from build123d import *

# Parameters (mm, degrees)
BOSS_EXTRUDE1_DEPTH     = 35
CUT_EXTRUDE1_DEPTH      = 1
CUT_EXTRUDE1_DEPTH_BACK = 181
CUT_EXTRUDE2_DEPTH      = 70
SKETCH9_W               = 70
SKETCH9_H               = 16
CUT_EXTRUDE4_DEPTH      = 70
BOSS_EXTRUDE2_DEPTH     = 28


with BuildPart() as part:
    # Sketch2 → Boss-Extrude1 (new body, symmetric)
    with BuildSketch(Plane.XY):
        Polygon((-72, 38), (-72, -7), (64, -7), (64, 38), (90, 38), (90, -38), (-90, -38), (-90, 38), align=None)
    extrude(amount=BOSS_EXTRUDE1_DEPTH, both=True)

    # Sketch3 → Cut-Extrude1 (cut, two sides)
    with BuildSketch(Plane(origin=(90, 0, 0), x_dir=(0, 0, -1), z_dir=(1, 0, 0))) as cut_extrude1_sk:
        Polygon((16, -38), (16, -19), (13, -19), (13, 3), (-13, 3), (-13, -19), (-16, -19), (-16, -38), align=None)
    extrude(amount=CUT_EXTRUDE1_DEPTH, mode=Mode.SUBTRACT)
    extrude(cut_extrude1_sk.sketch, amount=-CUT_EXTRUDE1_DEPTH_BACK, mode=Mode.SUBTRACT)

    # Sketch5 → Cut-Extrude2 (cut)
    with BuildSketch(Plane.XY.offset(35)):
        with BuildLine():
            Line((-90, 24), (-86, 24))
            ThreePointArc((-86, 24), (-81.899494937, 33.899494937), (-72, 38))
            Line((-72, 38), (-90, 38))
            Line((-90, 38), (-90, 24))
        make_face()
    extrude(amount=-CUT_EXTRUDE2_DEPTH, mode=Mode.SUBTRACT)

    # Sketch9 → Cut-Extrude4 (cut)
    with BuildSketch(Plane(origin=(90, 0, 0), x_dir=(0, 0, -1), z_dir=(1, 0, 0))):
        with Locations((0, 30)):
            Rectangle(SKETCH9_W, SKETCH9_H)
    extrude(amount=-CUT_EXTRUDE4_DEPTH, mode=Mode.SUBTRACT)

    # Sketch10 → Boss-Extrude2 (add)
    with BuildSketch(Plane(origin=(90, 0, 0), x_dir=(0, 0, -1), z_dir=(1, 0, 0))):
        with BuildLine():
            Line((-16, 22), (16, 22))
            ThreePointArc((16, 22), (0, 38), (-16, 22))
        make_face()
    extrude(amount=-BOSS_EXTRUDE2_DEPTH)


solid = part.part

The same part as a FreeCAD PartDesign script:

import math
import FreeCAD as App
import Part
import Sketcher
from FreeCAD import Vector
Q = App.Units.Quantity

doc = App.newDocument("Part")
body = doc.addObject("PartDesign::Body", "Body")

# Sketch on XY plane
sketch1 = doc.addObject("Sketcher::SketchObject", "Sketch")
body.addObject(sketch1)
sketch1.AttachmentSupport = (doc.XY_Plane, [""])
sketch1.MapMode = "FlatFace"
sketch1.addGeometry([
    Part.LineSegment(Vector(-72, -7, 0), Vector(-72, 38, 0)),  # 0
    Part.LineSegment(Vector(-72, 38, 0), Vector(-90, 38, 0)),  # 1
    Part.LineSegment(Vector(-90, 38, 0), Vector(-90, -38, 0)),  # 2
    Part.LineSegment(Vector(-90, -38, 0), Vector(90, -38, 0)),  # 3
    Part.LineSegment(Vector(90, -38, 0), Vector(90, 38, 0)),  # 4
    Part.LineSegment(Vector(90, 38, 0), Vector(64, 38, 0)),  # 5
    Part.LineSegment(Vector(64, 38, 0), Vector(64, -7, 0)),  # 6
    Part.LineSegment(Vector(64, -7, 0), Vector(-72, -7, 0)),  # 7
], False)
sketch1.addConstraint([
    Sketcher.Constraint("Coincident", 0, 2, 1, 1),
    Sketcher.Constraint("Coincident", 1, 2, 2, 1),
    Sketcher.Constraint("Coincident", 2, 2, 3, 1),
    Sketcher.Constraint("Coincident", 3, 2, 4, 1),
    Sketcher.Constraint("Coincident", 4, 2, 5, 1),
    Sketcher.Constraint("Coincident", 5, 2, 6, 1),
    Sketcher.Constraint("Coincident", 6, 2, 7, 1),
    Sketcher.Constraint("Coincident", 7, 2, 0, 1),
    Sketcher.Constraint("Vertical", 0),
    Sketcher.Constraint("Horizontal", 1),
    Sketcher.Constraint("Vertical", 2),
    Sketcher.Constraint("Horizontal", 3),
    Sketcher.Constraint("Vertical", 4),
    Sketcher.Constraint("Horizontal", 5),
    Sketcher.Constraint("Vertical", 6),
    Sketcher.Constraint("Horizontal", 7),
    Sketcher.Constraint("Symmetric", 1, 2, 3, 2, -1, 1),
    Sketcher.Constraint("Horizontal", 1, 2, 4, 2),
    Sketcher.Constraint("DistanceX", 1, 2, 1, 1, Q("18 mm")),
    Sketcher.Constraint("DistanceX", 3, 1, 3, 2, Q("180 mm")),
    Sketcher.Constraint("DistanceX", 5, 2, 5, 1, Q("26 mm")),
    Sketcher.Constraint("DistanceY", 0, 1, 0, 2, Q("45 mm")),
    Sketcher.Constraint("DistanceY", 2, 2, 2, 1, Q("76 mm")),
])
pad1 = doc.addObject("PartDesign::Pad", "Pad")
body.addObject(pad1)
pad1.Profile = sketch1
pad1.Length = 70
pad1.Midplane = True

# Sketch on YZ plane
sketch2 = doc.addObject("Sketcher::SketchObject", "Sketch001")
body.addObject(sketch2)
sketch2.AttachmentSupport = (doc.YZ_Plane, [""])
sketch2.MapMode = "FlatFace"
sketch2.AttachmentOffset = App.Placement(Vector(0, 0, 90), App.Rotation())
sketch2.addGeometry([
    Part.LineSegment(Vector(-38, -16, 0), Vector(-19, -16, 0)),  # 0
    Part.LineSegment(Vector(-19, -16, 0), Vector(-19, -13, 0)),  # 1
    Part.LineSegment(Vector(-19, -13, 0), Vector(3, -13, 0)),  # 2
    Part.LineSegment(Vector(3, -13, 0), Vector(3, 13, 0)),  # 3
    Part.LineSegment(Vector(3, 13, 0), Vector(-19, 13, 0)),  # 4
    Part.LineSegment(Vector(-19, 13, 0), Vector(-19, 16, 0)),  # 5
    Part.LineSegment(Vector(-19, 16, 0), Vector(-38, 16, 0)),  # 6
    Part.LineSegment(Vector(-38, 16, 0), Vector(-38, -16, 0)),  # 7
], False)
sketch2.addConstraint([
    Sketcher.Constraint("Coincident", 0, 2, 1, 1),
    Sketcher.Constraint("Coincident", 1, 2, 2, 1),
    Sketcher.Constraint("Coincident", 2, 2, 3, 1),
    Sketcher.Constraint("Coincident", 3, 2, 4, 1),
    Sketcher.Constraint("Coincident", 4, 2, 5, 1),
    Sketcher.Constraint("Coincident", 5, 2, 6, 1),
    Sketcher.Constraint("Coincident", 6, 2, 7, 1),
    Sketcher.Constraint("Coincident", 7, 2, 0, 1),
    Sketcher.Constraint("Horizontal", 0),
    Sketcher.Constraint("Vertical", 1),
    Sketcher.Constraint("Horizontal", 2),
    Sketcher.Constraint("Vertical", 3),
    Sketcher.Constraint("Horizontal", 4),
    Sketcher.Constraint("Vertical", 5),
    Sketcher.Constraint("Horizontal", 6),
    Sketcher.Constraint("Vertical", 7),
    Sketcher.Constraint("Symmetric", 1, 2, 4, 2, -1),
    Sketcher.Constraint("Equal", 1, 5),
    Sketcher.Constraint("DistanceX", 0, 1, 0, 2, Q("19 mm")),
    Sketcher.Constraint("DistanceX", 2, 1, 2, 2, Q("22 mm")),
    Sketcher.Constraint("DistanceY", 1, 1, 1, 2, Q("3 mm")),
    Sketcher.Constraint("DistanceY", 3, 1, 3, 2, Q("26 mm")),
    Sketcher.Constraint("DistanceX", 0, 2, -1, 1, Q("19 mm")),
])
pocket1 = doc.addObject("PartDesign::Pocket", "Pocket")
body.addObject(pocket1)
pocket1.Profile = sketch2
pocket1.Type = "ThroughAll"
pocket1.Midplane = True

# Sketch on XY plane
sketch3 = doc.addObject("Sketcher::SketchObject", "Sketch002")
body.addObject(sketch3)
sketch3.AttachmentSupport = (doc.XY_Plane, [""])
sketch3.MapMode = "FlatFace"
sketch3.AttachmentOffset = App.Placement(Vector(0, 0, 35), App.Rotation())
sketch3.addGeometry([
    Part.LineSegment(Vector(-90, 24, 0), Vector(-86, 24, 0)),
    Part.ArcOfCircle(Part.Circle(Vector(-72, 24, 0), Vector(0, 0, 1), 14), math.radians(90), math.radians(180)),
    Part.LineSegment(Vector(-72, 38, 0), Vector(-90, 38, 0)),
    Part.LineSegment(Vector(-90, 38, 0), Vector(-90, 24, 0)),
], False)
sketch3.addConstraint([
    Sketcher.Constraint("Coincident", 0, 2, 1, 2),
    Sketcher.Constraint("Tangent", 1, 1, 2, 1),
    Sketcher.Constraint("Coincident", 2, 2, 3, 1),
    Sketcher.Constraint("Coincident", 3, 2, 0, 1),
    Sketcher.Constraint("Horizontal", 0),
    Sketcher.Constraint("Horizontal", 2),
    Sketcher.Constraint("Vertical", 3),
    Sketcher.Constraint("Horizontal", 1, 3, 0, 2),
    Sketcher.Constraint("Radius", 1, Q("14 mm")),
    Sketcher.Constraint("DistanceX", 0, 1, 0, 2, Q("4 mm")),
    Sketcher.Constraint("DistanceX", 1, 3, -1, 1, Q("72 mm")),
    Sketcher.Constraint("DistanceY", -1, 1, 1, 3, Q("24 mm")),
])
pocket2 = doc.addObject("PartDesign::Pocket", "Pocket001")
body.addObject(pocket2)
pocket2.Profile = sketch3
pocket2.Length = 70

# Sketch on YZ plane
sketch4 = doc.addObject("Sketcher::SketchObject", "Sketch003")
body.addObject(sketch4)
sketch4.AttachmentSupport = (doc.YZ_Plane, [""])
sketch4.MapMode = "FlatFace"
sketch4.AttachmentOffset = App.Placement(Vector(0, 0, 90), App.Rotation())
sketch4.addGeometry([
    Part.LineSegment(Vector(38, 35, 0), Vector(22, 35, 0)),
    Part.LineSegment(Vector(22, 35, 0), Vector(22, -35, 0)),
    Part.LineSegment(Vector(22, -35, 0), Vector(38, -35, 0)),
    Part.LineSegment(Vector(38, -35, 0), Vector(38, 35, 0)),
], False)
sketch4.addConstraint([
    Sketcher.Constraint("Coincident", 0, 2, 1, 1),
    Sketcher.Constraint("Coincident", 1, 2, 2, 1),
    Sketcher.Constraint("Coincident", 2, 2, 3, 1),
    Sketcher.Constraint("Coincident", 3, 2, 0, 1),
    Sketcher.Constraint("Horizontal", 0),
    Sketcher.Constraint("Vertical", 1),
    Sketcher.Constraint("Horizontal", 2),
    Sketcher.Constraint("Vertical", 3),
    Sketcher.Constraint("DistanceX", 0, 2, 0, 1, Q("16 mm")),
    Sketcher.Constraint("DistanceY", 1, 2, 1, 1, Q("70 mm")),
    Sketcher.Constraint("DistanceX", -1, 1, 0, 2, Q("22 mm")),
    Sketcher.Constraint("DistanceY", -1, 1, 0, 2, Q("35 mm")),
])
pocket3 = doc.addObject("PartDesign::Pocket", "Pocket002")
body.addObject(pocket3)
pocket3.Profile = sketch4
pocket3.Length = 70

# Sketch on YZ plane
sketch5 = doc.addObject("Sketcher::SketchObject", "Sketch004")
body.addObject(sketch5)
sketch5.AttachmentSupport = (doc.YZ_Plane, [""])
sketch5.MapMode = "FlatFace"
sketch5.AttachmentOffset = App.Placement(Vector(0, 0, 90), App.Rotation())
sketch5.addGeometry([
    Part.LineSegment(Vector(22, 16, 0), Vector(22, -16, 0)),
    Part.ArcOfCircle(Part.Circle(Vector(22, 0, 0), Vector(0, 0, 1), 16), math.radians(-90), math.radians(90)),
], False)
sketch5.addConstraint([
    Sketcher.Constraint("Coincident", 0, 1, 1, 2),
    Sketcher.Constraint("Coincident", 1, 1, 0, 2),
    Sketcher.Constraint("Vertical", 0),
    Sketcher.Constraint("PointOnObject", 1, 3, -1),
    Sketcher.Constraint("Vertical", 1, 3, 0, 1),
    Sketcher.Constraint("Radius", 1, Q("16 mm")),
    Sketcher.Constraint("DistanceX", -1, 1, 1, 3, Q("22 mm")),
])
pad2 = doc.addObject("PartDesign::Pad", "Pad001")
body.addObject(pad2)
pad2.Profile = sketch5
pad2.Length = 28
pad2.Reversed = True

doc.recompute()
